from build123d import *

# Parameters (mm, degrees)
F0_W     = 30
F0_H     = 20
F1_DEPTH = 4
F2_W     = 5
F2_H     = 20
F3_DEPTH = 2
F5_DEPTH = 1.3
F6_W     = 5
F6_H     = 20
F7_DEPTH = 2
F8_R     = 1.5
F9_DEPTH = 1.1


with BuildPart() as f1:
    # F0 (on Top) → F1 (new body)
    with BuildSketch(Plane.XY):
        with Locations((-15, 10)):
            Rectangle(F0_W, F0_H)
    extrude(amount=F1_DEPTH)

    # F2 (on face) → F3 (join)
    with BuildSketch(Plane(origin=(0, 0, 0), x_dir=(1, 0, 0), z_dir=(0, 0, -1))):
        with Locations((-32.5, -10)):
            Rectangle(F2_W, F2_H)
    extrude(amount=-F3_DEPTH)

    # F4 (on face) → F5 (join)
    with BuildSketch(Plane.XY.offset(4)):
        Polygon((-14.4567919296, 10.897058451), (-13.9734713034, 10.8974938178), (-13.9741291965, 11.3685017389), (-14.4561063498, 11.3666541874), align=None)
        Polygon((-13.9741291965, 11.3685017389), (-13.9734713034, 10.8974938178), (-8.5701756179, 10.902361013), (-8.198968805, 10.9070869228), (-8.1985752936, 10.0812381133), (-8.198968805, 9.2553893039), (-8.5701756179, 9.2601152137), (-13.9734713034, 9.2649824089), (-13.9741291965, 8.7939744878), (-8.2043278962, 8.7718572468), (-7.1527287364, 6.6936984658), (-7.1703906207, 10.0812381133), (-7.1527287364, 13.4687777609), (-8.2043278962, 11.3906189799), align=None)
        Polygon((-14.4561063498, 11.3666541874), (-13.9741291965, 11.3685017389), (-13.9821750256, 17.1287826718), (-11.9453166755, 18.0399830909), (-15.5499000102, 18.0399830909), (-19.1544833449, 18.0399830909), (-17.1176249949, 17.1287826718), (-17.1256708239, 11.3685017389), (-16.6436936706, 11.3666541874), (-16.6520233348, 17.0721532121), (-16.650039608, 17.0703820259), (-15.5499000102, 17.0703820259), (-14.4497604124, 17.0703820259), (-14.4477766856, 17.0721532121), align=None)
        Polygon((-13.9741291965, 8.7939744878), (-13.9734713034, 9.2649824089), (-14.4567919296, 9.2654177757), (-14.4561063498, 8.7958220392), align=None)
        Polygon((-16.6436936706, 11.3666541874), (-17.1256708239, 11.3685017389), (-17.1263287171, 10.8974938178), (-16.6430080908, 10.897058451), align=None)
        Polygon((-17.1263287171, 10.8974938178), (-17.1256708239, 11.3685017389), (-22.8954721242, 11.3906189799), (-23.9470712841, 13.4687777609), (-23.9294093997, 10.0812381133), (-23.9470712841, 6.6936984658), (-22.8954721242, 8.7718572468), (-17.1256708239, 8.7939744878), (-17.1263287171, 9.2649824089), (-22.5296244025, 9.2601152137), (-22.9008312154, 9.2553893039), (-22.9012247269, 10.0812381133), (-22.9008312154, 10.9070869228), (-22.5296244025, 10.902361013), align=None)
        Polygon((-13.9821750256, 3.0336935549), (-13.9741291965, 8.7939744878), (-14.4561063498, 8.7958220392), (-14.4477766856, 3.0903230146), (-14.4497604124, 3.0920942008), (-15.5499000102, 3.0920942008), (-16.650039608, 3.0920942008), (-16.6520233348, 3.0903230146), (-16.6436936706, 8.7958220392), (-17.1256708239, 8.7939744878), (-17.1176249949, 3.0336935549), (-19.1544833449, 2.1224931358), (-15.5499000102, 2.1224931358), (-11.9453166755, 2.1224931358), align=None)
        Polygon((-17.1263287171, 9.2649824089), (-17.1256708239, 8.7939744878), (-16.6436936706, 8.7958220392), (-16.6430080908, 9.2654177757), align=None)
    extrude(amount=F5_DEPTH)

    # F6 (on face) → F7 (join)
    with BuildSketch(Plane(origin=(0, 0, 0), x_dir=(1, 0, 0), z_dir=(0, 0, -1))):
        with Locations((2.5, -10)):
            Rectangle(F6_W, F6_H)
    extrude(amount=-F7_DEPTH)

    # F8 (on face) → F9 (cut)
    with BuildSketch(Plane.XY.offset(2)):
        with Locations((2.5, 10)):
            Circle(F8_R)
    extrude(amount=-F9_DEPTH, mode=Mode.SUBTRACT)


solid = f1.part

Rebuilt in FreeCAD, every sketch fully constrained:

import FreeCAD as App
import Part
import Sketcher
Q = App.Units.Quantity


def add_polygon(sketch, points):
    """Adds a closed chain of lines whose ends are joined by coincident constraints."""
    first, n = sketch.GeometryCount, len(points)
    for a, b in zip(points, points[1:] + points[:1]):
        sketch.addGeometry(Part.LineSegment(App.Vector(*a, 0), App.Vector(*b, 0)), False)
    for i in range(n):
        sketch.addConstraint(Sketcher.Constraint("Coincident", first + i, 2, first + (i + 1) % n, 1))

doc = App.newDocument("Part")
body = doc.addObject("PartDesign::Body", "Body")

# Sketch on XY plane
sketch1 = body.newObject("Sketcher::SketchObject", "Sketch")
sketch1.AttachmentSupport = (doc.getObject("XY_Plane"), [""])
sketch1.MapMode = "FlatFace"
add_polygon(sketch1, [(-30, 20), (-30, 0), (0, 0), (0, 20)])  # lines 0-3
sketch1.addConstraint(Sketcher.Constraint("Vertical", 0))
sketch1.addConstraint(Sketcher.Constraint("Horizontal", 1))
sketch1.addConstraint(Sketcher.Constraint("Vertical", 2))
sketch1.addConstraint(Sketcher.Constraint("Horizontal", 3))
sketch1.addConstraint(Sketcher.Constraint("Coincident", 1, 2, -1, 1))
sketch1.addConstraint(Sketcher.Constraint("DistanceX", 1, 1, 1, 2, Q("30 mm")))
sketch1.addConstraint(Sketcher.Constraint("DistanceY", 0, 2, 0, 1, Q("20 mm")))
pad1 = body.newObject("PartDesign::Pad", "Pad")
pad1.Profile = sketch1
pad1.Length = 4

# Sketch on XY plane
sketch2 = body.newObject("Sketcher::SketchObject", "Sketch001")
sketch2.AttachmentSupport = (doc.getObject("XY_Plane"), [""])
sketch2.MapMode = "FlatFace"
add_polygon(sketch2, [(-35, 0), (-35, 20), (-30, 20), (-30, 0)])  # lines 0-3
sketch2.addConstraint(Sketcher.Constraint("Vertical", 0))
sketch2.addConstraint(Sketcher.Constraint("Horizontal", 1))
sketch2.addConstraint(Sketcher.Constraint("Vertical", 2))
sketch2.addConstraint(Sketcher.Constraint("Horizontal", 3))
sketch2.addConstraint(Sketcher.Constraint("PointOnObject", 2, 2, -1))
sketch2.addConstraint(Sketcher.Constraint("DistanceX", 1, 1, 1, 2, Q("5 mm")))
sketch2.addConstraint(Sketcher.Constraint("DistanceY", 0, 1, 0, 2, Q("20 mm")))
sketch2.addConstraint(Sketcher.Constraint("DistanceX", 0, 2, -1, 1, Q("35 mm")))
pad2 = body.newObject("PartDesign::Pad", "Pad001")
pad2.Profile = sketch2
pad2.Length = 2

# Sketch on XY plane
sketch3 = body.newObject("Sketcher::SketchObject", "Sketch002")
sketch3.AttachmentSupport = (doc.getObject("XY_Plane"), [""])
sketch3.MapMode = "FlatFace"
sketch3.AttachmentOffset = App.Placement(App.Vector(0, 0, 4), App.Rotation())
add_polygon(sketch3, [(-22.895472, 8.771857), (-17.125671, 8.793974), (-17.117625, 3.033694), (-19.154483, 2.122493), (-11.945317, 2.122493), (-13.982175, 3.033694), (-13.974129, 8.793974), (-8.204328, 8.771857), (-7.152729, 6.693698), (-7.170391, 10.081238), (-7.152729, 13.468778), (-8.204328, 11.390619), (-13.974129, 11.368502), (-13.982175, 17.128783), (-11.945317, 18.039983), (-19.154483, 18.039983), (-17.117625, 17.128783), (-17.125671, 11.368502), (-22.895472, 11.390619), (-23.947071, 13.468778), (-23.929409, 10.081238), (-23.947071, 6.693698)])  # lines 0-21
add_polygon(sketch3, [(-16.652023, 3.090323), (-16.643694, 8.795822), (-16.643008, 9.265418), (-17.126329, 9.264982), (-22.529624, 9.260115), (-22.900831, 9.255389), (-22.901225, 10.081238), (-22.900831, 10.907087), (-22.529624, 10.902361), (-17.126329, 10.897494), (-16.643008, 10.897058), (-16.643694, 11.366654), (-16.652023, 17.072153), (-16.65004, 17.070382), (-14.44976, 17.070382), (-14.447777, 17.072153), (-14.456106, 11.366654), (-14.456792, 10.897058), (-13.973471, 10.897494), (-8.570176, 10.902361), (-8.198969, 10.907087), (-8.198575, 10.081238), (-8.198969, 9.255389), (-8.570176, 9.260115), (-13.973471, 9.264982), (-14.456792, 9.265418), (-14.456106, 8.795822), (-14.447777, 3.090323), (-14.44976, 3.092094), (-16.65004, 3.092094)])  # lines 22-51
sketch3.addConstraint(Sketcher.Constraint("Horizontal", 3))
sketch3.addConstraint(Sketcher.Constraint("Horizontal", 14))
sketch3.addConstraint(Sketcher.Constraint("Horizontal", 35))
sketch3.addConstraint(Sketcher.Constraint("Horizontal", 50))
sketch3.addConstraint(Sketcher.Constraint("Parallel", 0, 11))
sketch3.addConstraint(Sketcher.Constraint("Parallel", 1, 12))
sketch3.addConstraint(Sketcher.Constraint("Parallel", 2, 13))
sketch3.addConstraint(Sketcher.Constraint("Parallel", 4, 15))
sketch3.addConstraint(Sketcher.Constraint("Parallel", 5, 16))
sketch3.addConstraint(Sketcher.Constraint("Parallel", 6, 17))
sketch3.addConstraint(Sketcher.Constraint("Parallel", 7, 18))
sketch3.addConstraint(Sketcher.Constraint("Parallel", 8, 19))
sketch3.addConstraint(Sketcher.Constraint("Parallel", 9, 20))
sketch3.addConstraint(Sketcher.Constraint("Parallel", 10, 21))
sketch3.addConstraint(Sketcher.Constraint("Parallel", 22, 23))
sketch3.addConstraint(Sketcher.Constraint("Parallel", 24, 25))
sketch3.addConstraint(Sketcher.Constraint("Parallel", 30, 31))
sketch3.addConstraint(Sketcher.Constraint("Parallel", 32, 33))
sketch3.addConstraint(Sketcher.Constraint("Parallel", 23, 37))
sketch3.addConstraint(Sketcher.Constraint("Parallel", 37, 38))
sketch3.addConstraint(Sketcher.Constraint("Parallel", 25, 39))
sketch3.addConstraint(Sketcher.Constraint("Parallel", 39, 40))
sketch3.addConstraint(Sketcher.Constraint("Parallel", 26, 41))
sketch3.addConstraint(Sketcher.Constraint("Parallel", 27, 42))
sketch3.addConstraint(Sketcher.Constraint("Parallel", 28, 43))
sketch3.addConstraint(Sketcher.Constraint("Parallel", 29, 44))
sketch3.addConstraint(Sketcher.Constraint("Parallel", 31, 45))
sketch3.addConstraint(Sketcher.Constraint("Parallel", 45, 46))
sketch3.addConstraint(Sketcher.Constraint("Parallel", 33, 47))
sketch3.addConstraint(Sketcher.Constraint("Parallel", 47, 48))
sketch3.addConstraint(Sketcher.Constraint("Parallel", 34, 49))
sketch3.addConstraint(Sketcher.Constraint("Parallel", 36, 51))
sketch3.addConstraint(Sketcher.Constraint("Horizontal", 1, 2, 4, 2))
sketch3.addConstraint(Sketcher.Constraint("Horizontal", 0, 2, 5, 2))
sketch3.addConstraint(Sketcher.Constraint("Horizontal", 12, 2, 15, 2))
sketch3.addConstraint(Sketcher.Constraint("Horizontal", 11, 2, 16, 2))
sketch3.addConstraint(Sketcher.Constraint("Horizontal", 10, 2, 17, 2))
sketch3.addConstraint(Sketcher.Constraint("Horizontal", 9, 2, 18, 2))
sketch3.addConstraint(Sketcher.Constraint("Horizontal", 8, 2, 19, 2))
sketch3.addConstraint(Sketcher.Constraint("Horizontal", 7, 2, 20, 2))
sketch3.addConstraint(Sketcher.Constraint("Horizontal", 6, 2, 21, 2))
sketch3.addConstraint(Sketcher.Constraint("Horizontal", 19, 2, 27, 2))
sketch3.addConstraint(Sketcher.Constraint("Horizontal", 33, 2, 36, 2))
sketch3.addConstraint(Sketcher.Constraint("Horizontal", 32, 2, 37, 2))
sketch3.addConstraint(Sketcher.Constraint("Horizontal", 31, 2, 38, 2))
sketch3.addConstraint(Sketcher.Constraint("Horizontal", 30, 2, 39, 2))
sketch3.addConstraint(Sketcher.Constraint("Horizontal", 29, 2, 40, 2))
sketch3.addConstraint(Sketcher.Constraint("Horizontal", 28, 2, 41, 2))
sketch3.addConstraint(Sketcher.Constraint("Horizontal", 27, 2, 42, 2))
sketch3.addConstraint(Sketcher.Constraint("Horizontal", 26, 2, 43, 2))
sketch3.addConstraint(Sketcher.Constraint("Horizontal", 25, 2, 44, 2))
sketch3.addConstraint(Sketcher.Constraint("Horizontal", 22, 2, 47, 2))
sketch3.addConstraint(Sketcher.Constraint("Horizontal", 48, 2, 51, 2))
sketch3.addConstraint(Sketcher.Constraint("Vertical", 7, 2, 9, 2))
sketch3.addConstraint(Sketcher.Constraint("Vertical", 6, 2, 10, 2))
sketch3.addConstraint(Sketcher.Constraint("Vertical", 5, 2, 11, 2))
sketch3.addConstraint(Sketcher.Constraint("Vertical", 4, 2, 12, 2))
sketch3.addConstraint(Sketcher.Constraint("Vertical", 3, 2, 13, 2))
sketch3.addConstraint(Sketcher.Constraint("Vertical", 2, 2, 14, 2))
sketch3.addConstraint(Sketcher.Constraint("Vertical", 1, 2, 15, 2))
sketch3.addConstraint(Sketcher.Constraint("Vertical", 18, 2, 20, 2))
sketch3.addConstraint(Sketcher.Constraint("Vertical", 17, 2, 21, 2))
sketch3.addConstraint(Sketcher.Constraint("Vertical", 26, 2, 28, 2))
sketch3.addConstraint(Sketcher.Constraint("Vertical", 25, 2, 29, 2))
sketch3.addConstraint(Sketcher.Constraint("Vertical", 24, 2, 30, 2))
sketch3.addConstraint(Sketcher.Constraint("Vertical", 23, 2, 31, 2))
sketch3.addConstraint(Sketcher.Constraint("Vertical", 22, 2, 32, 2))
sketch3.addConstraint(Sketcher.Constraint("Vertical", 40, 2, 44, 2))
sketch3.addConstraint(Sketcher.Constraint("Vertical", 39, 2, 45, 2))
sketch3.addConstraint(Sketcher.Constraint("Vertical", 38, 2, 46, 2))
sketch3.addConstraint(Sketcher.Constraint("Vertical", 36, 2, 48, 2))
sketch3.addConstraint(Sketcher.Constraint("Vertical", 35, 2, 49, 2))
sketch3.addConstraint(Sketcher.Constraint("Vertical", 34, 2, 50, 2))
sketch3.addConstraint(Sketcher.Constraint("Equal", 5, 12))
sketch3.addConstraint(Sketcher.Constraint("Equal", 27, 28))
sketch3.addConstraint(Sketcher.Constraint("Equal", 23, 32))
sketch3.addConstraint(Sketcher.Constraint("Equal", 31, 39))
sketch3.addConstraint(Sketcher.Constraint("DistanceX", 35, 1, 35, 2, Q("2.200279 mm")))
sketch3.addConstraint(Sketcher.Constraint("DistanceY", -1, 1, 7, 2, Q("6.693698 mm")))
sketch3.addConstraint(Sketcher.Constraint("DistanceY", -1, 1, 11, 2, Q("11.368502 mm")))
sketch3.addConstraint(Sketcher.Constraint("DistanceY", 2, 2, 1, 2, Q("0.9112 mm")))
sketch3.addConstraint(Sketcher.Constraint("DistanceX", 5, 2, 6, 2, Q("5.769801 mm")))
sketch3.addConstraint(Sketcher.Constraint("DistanceX", 6, 2, 7, 2, Q("1.051599 mm")))
sketch3.addConstraint(Sketcher.Constraint("DistanceX", 24, 2, 5, 2, Q("3.1522 mm")))
sketch3.addConstraint(Sketcher.Constraint("DistanceX", 27, 2, 25, 2, Q("0.3716 mm")))
sketch3.addConstraint(Sketcher.Constraint("DistanceX", 15, 2, 33, 2, Q("0.465602 mm")))
sketch3.addConstraint(Sketcher.Constraint("DistanceY", 32, 2, 33, 2, Q("5.705499 mm")))
sketch3.addConstraint(Sketcher.Constraint("DistanceY", 34, 2, 15, 2, Q("0.058401 mm")))
sketch3.addConstraint(Sketcher.Constraint("DistanceX", 36, 2, 12, 2, Q("0.465602 mm")))
sketch3.addConstraint(Sketcher.Constraint("DistanceX", 31, 2, 37, 2, Q("2.186902 mm")))
sketch3.addConstraint(Sketcher.Constraint("Distance", 7, Q("2.329078 mm")))
sketch3.addConstraint(Sketcher.Constraint("Distance", 24, Q("0.483321 mm")))
sketch3.addConstraint(Sketcher.Constraint("Distance", 27, Q("0.825849 mm")))
sketch3.addConstraint(Sketcher.Constraint("Distance", 34, Q("0.002659 mm")))
sketch3.addConstraint(Sketcher.Constraint("DistanceX", 3, 1, 3, 2, Q("7.209167 mm")))
sketch3.addConstraint(Sketcher.Constraint("DistanceX", 0, 2, -1, 1, Q("17.125671 mm")))
sketch3.addConstraint(Sketcher.Constraint("DistanceX", 5, 2, -1, 1, Q("13.974129 mm")))
sketch3.addConstraint(Sketcher.Constraint("DistanceX", 8, 2, -1, 1, Q("7.170391 mm")))
sketch3.addConstraint(Sketcher.Constraint("DistanceY", -1, 1, 8, 2, Q("10.081238 mm")))
sketch3.addConstraint(Sketcher.Constraint("DistanceX", 26, 2, -1, 1, Q("22.900831 mm")))
sketch3.addConstraint(Sketcher.Constraint("DistanceY", -1, 1, 29, 2, Q("10.902361 mm")))
sketch3.addConstraint(Sketcher.Constraint("DistanceY", -1, 1, 31, 2, Q("10.897058 mm")))
sketch3.addConstraint(Sketcher.Constraint("DistanceY", 1, 2, 0, 2, Q("5.760281 mm")))
sketch3.addConstraint(Sketcher.Constraint("Distance", 25, Q("5.403298 mm")))
pad3 = body.newObject("PartDesign::Pad", "Pad002")
pad3.Profile = sketch3
pad3.Length = 1.3

# Sketch on XY plane
sketch4 = body.newObject("Sketcher::SketchObject", "Sketch003")
sketch4.AttachmentSupport = (doc.getObject("XY_Plane"), [""])
sketch4.MapMode = "FlatFace"
add_polygon(sketch4, [(0, 0), (0, 20), (5, 20), (5, 0)])  # lines 0-3
sketch4.addConstraint(Sketcher.Constraint("Vertical", 0))
sketch4.addConstraint(Sketcher.Constraint("Horizontal", 1))
sketch4.addConstraint(Sketcher.Constraint("Vertical", 2))
sketch4.addConstraint(Sketcher.Constraint("Horizontal", 3))
sketch4.addConstraint(Sketcher.Constraint("Coincident", 3, 2, -1, 1))
sketch4.addConstraint(Sketcher.Constraint("DistanceX", 1, 1, 1, 2, Q("5 mm")))
sketch4.addConstraint(Sketcher.Constraint("DistanceY", 0, 1, 0, 2, Q("20 mm")))
pad4 = body.newObject("PartDesign::Pad", "Pad003")
pad4.Profile = sketch4
pad4.Length = 2

# Sketch on XY plane
sketch5 = body.newObject("Sketcher::SketchObject", "Sketch004")
sketch5.AttachmentSupport = (doc.getObject("XY_Plane"), [""])
sketch5.MapMode = "FlatFace"
sketch5.AttachmentOffset = App.Placement(App.Vector(0, 0, 2), App.Rotation())
sketch5.addGeometry(Part.Circle(App.Vector(2.5, 10, 0), App.Vector(0, 0, 1), 1.5), False)
sketch5.addConstraint(Sketcher.Constraint("Diameter", 0, Q("3 mm")))
sketch5.addConstraint(Sketcher.Constraint("DistanceY", -1, 1, 0, 3, Q("10 mm")))
sketch5.addConstraint(Sketcher.Constraint("DistanceX", -1, 1, 0, 3, Q("2.5 mm")))
pocket1 = body.newObject("PartDesign::Pocket", "Pocket")
pocket1.Profile = sketch5
pocket1.Length = 1.1

doc.recompute()
